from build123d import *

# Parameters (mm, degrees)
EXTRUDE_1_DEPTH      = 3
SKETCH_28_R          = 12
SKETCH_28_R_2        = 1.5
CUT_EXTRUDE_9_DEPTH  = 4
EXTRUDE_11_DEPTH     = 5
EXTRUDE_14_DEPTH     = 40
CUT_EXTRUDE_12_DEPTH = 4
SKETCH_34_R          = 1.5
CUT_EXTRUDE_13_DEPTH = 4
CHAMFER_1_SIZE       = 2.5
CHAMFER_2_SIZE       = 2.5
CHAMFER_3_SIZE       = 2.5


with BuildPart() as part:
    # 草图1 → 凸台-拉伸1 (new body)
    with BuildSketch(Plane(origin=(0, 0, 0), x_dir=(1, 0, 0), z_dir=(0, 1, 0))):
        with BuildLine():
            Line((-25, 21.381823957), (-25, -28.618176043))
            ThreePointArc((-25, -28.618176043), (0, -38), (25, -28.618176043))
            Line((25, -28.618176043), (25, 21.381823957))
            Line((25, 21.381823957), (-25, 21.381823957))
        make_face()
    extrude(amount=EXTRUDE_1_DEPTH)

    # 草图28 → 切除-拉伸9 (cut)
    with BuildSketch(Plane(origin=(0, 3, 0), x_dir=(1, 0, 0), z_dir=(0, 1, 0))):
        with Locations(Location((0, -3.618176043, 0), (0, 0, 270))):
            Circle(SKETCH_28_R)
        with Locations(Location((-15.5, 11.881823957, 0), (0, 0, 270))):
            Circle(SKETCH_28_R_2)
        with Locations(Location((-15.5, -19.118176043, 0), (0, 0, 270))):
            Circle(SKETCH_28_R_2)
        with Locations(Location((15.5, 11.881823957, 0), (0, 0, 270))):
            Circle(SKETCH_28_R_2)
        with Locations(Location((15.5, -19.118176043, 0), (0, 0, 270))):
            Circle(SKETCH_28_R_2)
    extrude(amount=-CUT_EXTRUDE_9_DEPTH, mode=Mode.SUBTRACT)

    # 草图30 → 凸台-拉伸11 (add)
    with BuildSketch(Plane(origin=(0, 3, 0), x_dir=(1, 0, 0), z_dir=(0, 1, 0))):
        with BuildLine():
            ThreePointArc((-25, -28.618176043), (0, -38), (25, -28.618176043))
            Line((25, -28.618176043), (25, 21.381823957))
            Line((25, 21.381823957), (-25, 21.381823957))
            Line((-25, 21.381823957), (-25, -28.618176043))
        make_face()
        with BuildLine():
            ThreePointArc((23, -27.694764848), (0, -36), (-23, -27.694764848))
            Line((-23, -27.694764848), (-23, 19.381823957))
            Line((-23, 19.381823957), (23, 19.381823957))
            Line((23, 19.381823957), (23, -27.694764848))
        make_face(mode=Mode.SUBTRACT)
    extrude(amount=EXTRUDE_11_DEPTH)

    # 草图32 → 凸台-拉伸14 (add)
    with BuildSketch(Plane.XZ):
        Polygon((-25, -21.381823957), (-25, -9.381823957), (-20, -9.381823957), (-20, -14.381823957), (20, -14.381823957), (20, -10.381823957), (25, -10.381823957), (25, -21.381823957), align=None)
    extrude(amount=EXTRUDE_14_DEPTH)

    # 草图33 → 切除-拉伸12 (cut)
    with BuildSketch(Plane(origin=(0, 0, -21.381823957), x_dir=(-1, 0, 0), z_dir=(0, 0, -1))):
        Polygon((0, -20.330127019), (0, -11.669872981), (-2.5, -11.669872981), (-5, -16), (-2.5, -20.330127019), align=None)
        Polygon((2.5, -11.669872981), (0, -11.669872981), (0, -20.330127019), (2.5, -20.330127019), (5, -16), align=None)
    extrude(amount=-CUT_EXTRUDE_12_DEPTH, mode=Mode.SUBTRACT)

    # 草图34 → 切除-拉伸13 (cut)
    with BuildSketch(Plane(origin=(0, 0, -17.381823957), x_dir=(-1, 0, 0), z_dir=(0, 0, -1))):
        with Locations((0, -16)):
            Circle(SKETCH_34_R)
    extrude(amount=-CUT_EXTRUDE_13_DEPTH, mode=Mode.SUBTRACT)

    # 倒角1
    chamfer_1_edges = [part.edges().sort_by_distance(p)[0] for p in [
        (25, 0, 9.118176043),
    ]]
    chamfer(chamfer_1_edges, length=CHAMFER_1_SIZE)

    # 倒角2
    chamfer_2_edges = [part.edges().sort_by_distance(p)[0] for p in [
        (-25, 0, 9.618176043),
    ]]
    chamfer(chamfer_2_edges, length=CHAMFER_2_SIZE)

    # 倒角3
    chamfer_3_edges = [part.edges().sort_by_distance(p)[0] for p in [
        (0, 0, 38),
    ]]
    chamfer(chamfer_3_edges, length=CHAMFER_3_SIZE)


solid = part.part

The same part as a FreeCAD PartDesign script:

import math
import FreeCAD as App
import Part
import Sketcher

V = App.Vector
Q = App.Units.Quantity


def edges_at(feature, points):
    """Names of the edges that pass closest to the given points."""
    edges = feature.Shape.Edges
    near = lambda p: min(range(len(edges)), key=lambda i: edges[i].distToShape(Part.Vertex(*p))[0])
    return sorted({f"Edge{near(p) + 1}" for p in points})


def add_polygon(sketch, points):
    """Adds a closed chain of lines whose ends are joined by coincident constraints."""
    first, n = sketch.GeometryCount, len(points)
    for a, b in zip(points, points[1:] + points[:1]):
        sketch.addGeometry(Part.LineSegment(App.Vector(*a, 0), App.Vector(*b, 0)), False)
    for i in range(n):
        sketch.addConstraint(Sketcher.Constraint("Coincident", first + i, 2, first + (i + 1) % n, 1))

doc = App.newDocument("Part")
params = doc.addObject("Spreadsheet::Sheet", "Params")
for row, (alias, value) in enumerate([
    ("sketch1_radius", "38 mm"),
    ("sketch1_width", "50 mm"),
    ("pad1_length", "3 mm"),
    ("sketch2_diameter", "24 mm"),
    ("sketch2_diameter2", "3 mm"),
    ("pocket1_length", "4 mm"),
    ("sketch3_radius", "38 mm"),
    ("sketch3_radius2", "36 mm"),
    ("sketch3_width", "50 mm"),
    ("sketch3_width2", "46 mm"),
    ("pad2_length", "5 mm"),
    ("sketch4_width", "50 mm"),
    ("sketch4_width2", "5 mm"),
    ("sketch4_height", "12 mm"),
    ("sketch4_height2", "11 mm"),
    ("pad3_length", "40 mm"),
    ("sketch5_width", "5 mm"),
    ("sketch5_length", "5 mm"),
    ("pocket2_length", "4 mm"),
    ("sketch6_diameter", "3 mm"),
    ("pocket3_length", "4 mm"),
    ("chamfer_size", "2.5 mm"),
    ("chamfer2_size", "2.5 mm"),
    ("chamfer3_size", "2.5 mm"),
], start=1):
    params.set(f"A{row}", alias)
    params.set(f"B{row}", "=" + value)
    params.setAlias(f"B{row}", alias)

body = doc.addObject("PartDesign::Body", "Body")

# Sketch on XZ plane
sketch1 = body.newObject("Sketcher::SketchObject", "Sketch")
sketch1.AttachmentSupport = (doc.getObject("XZ_Plane"), [""])
sketch1.MapMode = "FlatFace"
sketch1.addGeometry([
    Part.LineSegment(V(-25, -21, 0), V(-25, 29, 0)),
    Part.ArcOfCircle(Part.Circle(V(0, 0, 0), V(0, 0, 1), 38), math.radians(49), math.radians(131)),
    Part.LineSegment(V(25, 29, 0), V(25, -21, 0)),
    Part.LineSegment(V(25, -21, 0), V(-25, -21, 0)),
], False)
sketch1.addConstraint([
    Sketcher.Constraint("Coincident", 0, 2, 1, 2),
    Sketcher.Constraint("Coincident", 1, 1, 2, 1),
    Sketcher.Constraint("Coincident", 2, 2, 3, 1),
    Sketcher.Constraint("Coincident", 3, 2, 0, 1),
    Sketcher.Constraint("Vertical", 0),
    Sketcher.Constraint("Vertical", 2),
    Sketcher.Constraint("Horizontal", 3),
    Sketcher.Constraint("Coincident", 1, 3, -1, 1),
    Sketcher.Constraint("Horizontal", 0, 2, 1, 1),
    Sketcher.Constraint("Equal", 3, 0),
    Sketcher.Constraint("Radius", 1, 38.0),
    Sketcher.Constraint("DistanceX", 3, 2, 3, 1, 50.0),
])
sketch1.setExpression("Constraints[10]", "Params.sketch1_radius")
sketch1.setExpression("Constraints[11]", "Params.sketch1_width")
pad1 = body.newObject("PartDesign::Pad", "Pad")
pad1.Profile = sketch1
pad1.setExpression("Length", "Params.pad1_length")
pad1.Reversed = True

# Sketch on XZ plane
sketch2 = body.newObject("Sketcher::SketchObject", "Sketch001")
sketch2.AttachmentSupport = (doc.getObject("XZ_Plane"), [""])
sketch2.MapMode = "FlatFace"
sketch2.AttachmentOffset = App.Placement(V(0, 0, -3), App.Rotation())
sketch2.addGeometry([
    Part.Circle(V(0, 3.6, 0), V(0, 0, 1), 12),  # 0
    Part.Circle(V(-15.5, -11.9, 0), V(0, 0, 1), 1.5),  # 1
    Part.Circle(V(-15.5, 19.1, 0), V(0, 0, 1), 1.5),  # 2
    Part.Circle(V(15.5, -11.9, 0), V(0, 0, 1), 1.5),  # 3
    Part.Circle(V(15.5, 19.1, 0), V(0, 0, 1), 1.5),  # 4
], False)
sketch2.addConstraint([
    Sketcher.Constraint("Equal", 1, 2),
    Sketcher.Constraint("Equal", 2, 3),
    Sketcher.Constraint("Equal", 3, 4),
    Sketcher.Constraint("Symmetric", 1, 3, 3, 3, -2),
    Sketcher.Constraint("Symmetric", 2, 3, 4, 3, -2),
    Sketcher.Constraint("PointOnObject", 0, 3, -2),
    Sketcher.Constraint("Vertical", 1, 3, 2, 3),
    Sketcher.Constraint("Diameter", 0, 24.0),
    Sketcher.Constraint("Diameter", 1, 3.0),
    Sketcher.Constraint("DistanceY", 1, 3, 2, 3, 31.0),
    Sketcher.Constraint("DistanceX", 1, 3, 3, 3, 31.0),
    Sketcher.Constraint("DistanceY", 1, 3, 0, 3, 15.5),
    Sketcher.Constraint("DistanceY", -1, 1, 0, 3, 3.618176),
])
sketch2.setExpression("Constraints[7]", "Params.sketch2_diameter")
sketch2.setExpression("Constraints[8]", "Params.sketch2_diameter2")
pocket1 = body.newObject("PartDesign::Pocket", "Pocket")
pocket1.Profile = sketch2
pocket1.setExpression("Length", "Params.pocket1_length")
pocket1.Reversed = True

# Sketch on XZ plane
sketch3 = body.newObject("Sketcher::SketchObject", "Sketch002")
sketch3.AttachmentSupport = (doc.getObject("XZ_Plane"), [""])
sketch3.MapMode = "FlatFace"
sketch3.AttachmentOffset = App.Placement(V(0, 0, -3), App.Rotation())
sketch3.addGeometry([
    Part.ArcOfCircle(Part.Circle(V(0, 0, 0), V(0, 0, 1), 38), math.radians(49), math.radians(131)),  # 0
    Part.LineSegment(V(25, 29, 0), V(25, -21, 0)),  # 1
    Part.LineSegment(V(25, -21, 0), V(-25, -21, 0)),  # 2
    Part.LineSegment(V(-25, -21, 0), V(-25, 29, 0)),  # 3
    Part.LineSegment(V(23, -19, 0), V(23, 28, 0)),  # 4
    Part.ArcOfCircle(Part.Circle(V(0, 0, 0), V(0, 0, 1), 36), math.radians(50), math.radians(130)),  # 5
    Part.LineSegment(V(-23, 28, 0), V(-23, -19, 0)),  # 6
    Part.LineSegment(V(-23, -19, 0), V(23, -19, 0)),  # 7
], False)
sketch3.addConstraint([
    Sketcher.Constraint("Coincident", 0, 1, 1, 1),
    Sketcher.Constraint("Coincident", 1, 2, 2, 1),
    Sketcher.Constraint("Coincident", 2, 2, 3, 1),
    Sketcher.Constraint("Coincident", 3, 2, 0, 2),
    Sketcher.Constraint("Coincident", 4, 2, 5, 1),
    Sketcher.Constraint("Coincident", 5, 2, 6, 1),
    Sketcher.Constraint("Coincident", 6, 2, 7, 1),
    Sketcher.Constraint("Coincident", 7, 2, 4, 1),
    Sketcher.Constraint("Vertical", 1),
    Sketcher.Constraint("Horizontal", 2),
    Sketcher.Constraint("Vertical", 3),
    Sketcher.Constraint("Vertical", 4),
    Sketcher.Constraint("Vertical", 6),
    Sketcher.Constraint("Horizontal", 7),
    Sketcher.Constraint("Coincident", 0, 3, -1, 1),
    Sketcher.Constraint("Coincident", 5, 3, -1, 1),
    Sketcher.Constraint("Horizontal", 0, 1, 3, 2),
    Sketcher.Constraint("Horizontal", 4, 2, 5, 2),
    Sketcher.Constraint("Equal", 2, 1),
    Sketcher.Constraint("Radius", 0, 38.0),
    Sketcher.Constraint("Radius", 5, 36.0),
    Sketcher.Constraint("DistanceX", 2, 2, 2, 1, 50.0),
    Sketcher.Constraint("DistanceX", 7, 1, 7, 2, 46.0),
    Sketcher.Constraint("DistanceY", 2, 2, 6, 2, 2.0),
])
sketch3.setExpression("Constraints[19]", "Params.sketch3_radius")
sketch3.setExpression("Constraints[20]", "Params.sketch3_radius2")
sketch3.setExpression("Constraints[21]", "Params.sketch3_width")
sketch3.setExpression("Constraints[22]", "Params.sketch3_width2")
pad2 = body.newObject("PartDesign::Pad", "Pad001")
pad2.Profile = sketch3
pad2.setExpression("Length", "Params.pad2_length")
pad2.Reversed = True

# Sketch on XZ plane
sketch4 = body.newObject("Sketcher::SketchObject", "Sketch003")
sketch4.AttachmentSupport = (doc.getObject("XZ_Plane"), [""])
sketch4.MapMode = "FlatFace"
add_polygon(sketch4, [(-25, -9.4), (-25, -21.4), (25, -21.4), (25, -10.4), (20, -10.4), (20, -14.4), (-20, -14.4), (-20, -9.4)])  # lines 0-7
sketch4.addConstraint([
    Sketcher.Constraint("Vertical", 0),
    Sketcher.Constraint("Horizontal", 1),
    Sketcher.Constraint("Vertical", 2),
    Sketcher.Constraint("Horizontal", 3),
    Sketcher.Constraint("Vertical", 4),
    Sketcher.Constraint("Horizontal", 5),
    Sketcher.Constraint("Vertical", 6),
    Sketcher.Constraint("Horizontal", 7),
    Sketcher.Constraint("Equal", 3, 7),
    Sketcher.Constraint("Equal", 7, 6),
    Sketcher.Constraint("DistanceX", 1, 1, 1, 2, 50.0),
    Sketcher.Constraint("DistanceX", 3, 2, 3, 1, 5.0),
    Sketcher.Constraint("DistanceY", 0, 2, 0, 1, 12.0),
    Sketcher.Constraint("DistanceY", 2, 1, 2, 2, 11.0),
    Sketcher.Constraint("DistanceX", 0, 2, -1, 1, 25.0),
    Sketcher.Constraint("DistanceY", 0, 2, -1, 1, 21.381824),
])
sketch4.setExpression("Constraints[18]", "Params.sketch4_width")
sketch4.setExpression("Constraints[19]", "Params.sketch4_width2")
sketch4.setExpression("Constraints[20]", "Params.sketch4_height")
sketch4.setExpression("Constraints[21]", "Params.sketch4_height2")
pad3 = body.newObject("PartDesign::Pad", "Pad002")
pad3.Profile = sketch4
pad3.setExpression("Length", "Params.pad3_length")

# Sketch on XY plane
sketch5 = body.newObject("Sketcher::SketchObject", "Sketch004")
sketch5.AttachmentSupport = (doc.getObject("XY_Plane"), [""])
sketch5.MapMode = "FlatFace"
sketch5.AttachmentOffset = App.Placement(V(0, 0, -21.381824), App.Rotation())
add_polygon(sketch5, [(2, -12), (5, -16), (2, -20), (-2, -20), (-5, -16), (-2, -12)])  # lines 0-5
sketch5.addConstraint([
    Sketcher.Constraint("Horizontal", 2),
    Sketcher.Constraint("Horizontal", 5),
    Sketcher.Constraint("Symmetric", 0, 2, 3, 2, -2),
    Sketcher.Constraint("Parallel", 0, 3),
    Sketcher.Constraint("Parallel", 1, 4),
    Sketcher.Constraint("Vertical", 2, 2, 4, 2),
    Sketcher.Constraint("Vertical", 1, 2, 5, 2),
    Sketcher.Constraint("DistanceX", 2, 2, 2, 1, 5.0),
    Sketcher.Constraint("Angle", 0, Q("-60 deg")),
    Sketcher.Constraint("Distance", 0, 5.0),
    Sketcher.Constraint("DistanceY", 0, 2, -1, 1, 16.0),
])
sketch5.setExpression("Constraints[13]", "Params.sketch5_width")
sketch5.setExpression("Constraints[15]", "Params.sketch5_length")
pocket2 = body.newObject("PartDesign::Pocket", "Pocket001")
pocket2.Profile = sketch5
pocket2.setExpression("Length", "Params.pocket2_length")
pocket2.Reversed = True

# Sketch on XY plane
sketch6 = body.newObject("Sketcher::SketchObject", "Sketch005")
sketch6.AttachmentSupport = (doc.getObject("XY_Plane"), [""])
sketch6.MapMode = "FlatFace"
sketch6.AttachmentOffset = App.Placement(V(0, 0, -17.381824), App.Rotation())
sketch6.addGeometry(Part.Circle(V(0, -16, 0), V(0, 0, 1), 1.5), False)
sketch6.addConstraint([
    Sketcher.Constraint("PointOnObject", 0, 3, -2),
    Sketcher.Constraint("Diameter", 0, 3.0),
    Sketcher.Constraint("DistanceY", 0, 3, -1, 1, 16.0),
])
sketch6.setExpression("Constraints[1]", "Params.sketch6_diameter")
pocket3 = body.newObject("PartDesign::Pocket", "Pocket002")
pocket3.Profile = sketch6
pocket3.setExpression("Length", "Params.pocket3_length")
pocket3.Reversed = True
doc.recompute()

chamfer = body.newObject("PartDesign::Chamfer", "Chamfer")
chamfer.Base = (pocket3, edges_at(pocket3, [(25, 0, 9.118)]))
chamfer.setExpression("Size", "Params.chamfer_size")
doc.recompute()

chamfer2 = body.newObject("PartDesign::Chamfer", "Chamfer001")
chamfer2.Base = (chamfer, edges_at(chamfer, [(-25, 0, 9.618)]))
chamfer2.setExpression("Size", "Params.chamfer2_size")
doc.recompute()

chamfer3 = body.newObject("PartDesign::Chamfer", "Chamfer002")
chamfer3.Base = (chamfer2, edges_at(chamfer2, [(0, 0, 38)]))
chamfer3.setExpression("Size", "Params.chamfer3_size")

doc.recompute()
